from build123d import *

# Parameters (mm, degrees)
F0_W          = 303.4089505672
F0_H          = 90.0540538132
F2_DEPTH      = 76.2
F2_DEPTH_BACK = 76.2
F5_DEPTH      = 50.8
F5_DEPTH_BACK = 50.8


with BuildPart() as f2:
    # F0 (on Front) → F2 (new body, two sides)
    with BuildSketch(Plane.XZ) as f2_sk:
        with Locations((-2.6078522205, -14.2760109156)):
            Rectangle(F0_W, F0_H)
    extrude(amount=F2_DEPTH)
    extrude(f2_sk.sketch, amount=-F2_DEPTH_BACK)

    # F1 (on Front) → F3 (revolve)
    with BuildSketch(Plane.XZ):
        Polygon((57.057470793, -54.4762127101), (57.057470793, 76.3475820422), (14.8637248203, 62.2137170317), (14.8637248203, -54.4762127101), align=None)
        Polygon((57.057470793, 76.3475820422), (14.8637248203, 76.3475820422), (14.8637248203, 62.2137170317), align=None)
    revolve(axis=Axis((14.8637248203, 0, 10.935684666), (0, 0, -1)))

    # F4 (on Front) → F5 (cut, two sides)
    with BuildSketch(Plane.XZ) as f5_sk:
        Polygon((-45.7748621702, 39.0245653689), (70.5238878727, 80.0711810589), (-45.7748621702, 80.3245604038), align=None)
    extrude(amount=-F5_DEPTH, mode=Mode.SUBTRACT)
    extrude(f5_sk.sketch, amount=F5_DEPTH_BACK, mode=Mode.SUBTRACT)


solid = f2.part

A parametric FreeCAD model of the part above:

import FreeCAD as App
import Part
import Sketcher
from FreeCAD import Vector
Q = App.Units.Quantity


def add_polygon(sketch, points):
    """Adds a closed chain of lines whose ends are joined by coincident constraints."""
    first, n = sketch.GeometryCount, len(points)
    for a, b in zip(points, points[1:] + points[:1]):
        sketch.addGeometry(Part.LineSegment(App.Vector(*a, 0), App.Vector(*b, 0)), False)
    for i in range(n):
        sketch.addConstraint(Sketcher.Constraint("Coincident", first + i, 2, first + (i + 1) % n, 1))

doc = App.newDocument("Part")
params = doc.addObject("Spreadsheet::Sheet", "Params")
for row, (alias, value) in enumerate([
    ("pad1_length", "3 in"),
    ("pad1_length2", "3 in"),
    ("revolution_angle", "360 deg"),
], start=1):
    params.set(f"A{row}", alias)
    params.set(f"B{row}", "=" + value)
    params.setAlias(f"B{row}", alias)

body = doc.addObject("PartDesign::Body", "Body")

sketch1 = body.newObject("Sketcher::SketchObject", "Sketch")
sketch1.AttachmentSupport = (doc.getObject("XZ_Plane"), [""])
sketch1.MapMode = "FlatFace"
add_polygon(sketch1, [(-154.312328, 30.751016), (-154.312328, -59.303038), (149.096623, -59.303038), (149.096623, 30.751016)])
sketch1.addConstraint(Sketcher.Constraint("Vertical", 0))
sketch1.addConstraint(Sketcher.Constraint("Horizontal", 1))
sketch1.addConstraint(Sketcher.Constraint("Vertical", 2))
sketch1.addConstraint(Sketcher.Constraint("Horizontal", 3))
sketch1.addConstraint(Sketcher.Constraint("DistanceX", 1, 1, 1, 2, Q("303.408951 mm")))
sketch1.addConstraint(Sketcher.Constraint("DistanceY", 0, 2, 0, 1, Q("90.054054 mm")))
sketch1.addConstraint(Sketcher.Constraint("DistanceX", 0, 2, -1, 1, Q("154.312328 mm")))
sketch1.addConstraint(Sketcher.Constraint("DistanceY", 0, 2, -1, 1, Q("59.303038 mm")))
pad1 = body.newObject("PartDesign::Pad", "Pad")
pad1.Profile = sketch1
pad1.Type = "TwoLengths"
pad1.setExpression("Length", "Params.pad1_length")
pad1.setExpression("Length2", "Params.pad1_length2")

sketch2 = body.newObject("Sketcher::SketchObject", "Sketch001")
sketch2.AttachmentSupport = (doc.getObject("XZ_Plane"), [""])
sketch2.MapMode = "FlatFace"
add_polygon(sketch2, [(57.057471, -54.476213), (57.057471, 76.347582), (14.863725, 76.347582), (14.863725, -54.476213)])
sketch2.addGeometry(Part.LineSegment(Vector(14.863725, 76.347582, 0), Vector(14.863725, -54.476213, 0)), True)
sketch2.addConstraint(Sketcher.Constraint("Vertical", 0))
sketch2.addConstraint(Sketcher.Constraint("Horizontal", 1))
sketch2.addConstraint(Sketcher.Constraint("Vertical", 2))
sketch2.addConstraint(Sketcher.Constraint("Horizontal", 3))
sketch2.addConstraint(Sketcher.Constraint("Vertical", 4))
sketch2.addConstraint(Sketcher.Constraint("Coincident", 4, 1, 1, 2))
sketch2.addConstraint(Sketcher.Constraint("Horizontal", 3, 2, 4, 2))
sketch2.addConstraint(Sketcher.Constraint("DistanceX", 1, 2, 1, 1, Q("42.193746 mm")))
sketch2.addConstraint(Sketcher.Constraint("DistanceY", 0, 1, 0, 2, Q("130.823795 mm")))
sketch2.addConstraint(Sketcher.Constraint("DistanceX", -1, 1, 0, 2, Q("57.057471 mm")))
sketch2.addConstraint(Sketcher.Constraint("DistanceY", -1, 1, 0, 2, Q("76.347582 mm")))
revolution = body.newObject("PartDesign::Revolution", "Revolution")
revolution.Profile = sketch2
revolution.ReferenceAxis = (sketch2, ["Axis0"])
revolution.setExpression("Angle", "Params.revolution_angle")

sketch3 = body.newObject("Sketcher::SketchObject", "Sketch002")
sketch3.AttachmentSupport = (doc.getObject("XZ_Plane"), [""])
sketch3.MapMode = "FlatFace"
add_polygon(sketch3, [(-45.774862, 39.024565), (70.523888, 80.071181), (-45.774862, 80.32456)])
sketch3.addConstraint(Sketcher.Constraint("Vertical", 2))
sketch3.addConstraint(Sketcher.Constraint("DistanceY", 2, 2, 2, 1, Q("41.299995 mm")))
sketch3.addConstraint(Sketcher.Constraint("DistanceY", -1, 1, 0, 2, Q("80.071181 mm")))
sketch3.addConstraint(Sketcher.Constraint("DistanceY", -1, 1, 1, 2, Q("80.32456 mm")))
sketch3.addConstraint(Sketcher.Constraint("DistanceX", 1, 2, 0, 2, Q("116.29875 mm")))
sketch3.addConstraint(Sketcher.Constraint("DistanceX", -1, 1, 0, 2, Q("70.523888 mm")))
pocket1 = body.newObject("PartDesign::Pocket", "Pocket")
pocket1.Profile = sketch3
pocket1.Type = "ThroughAll"
pocket1.Midplane = True

doc.recompute()
